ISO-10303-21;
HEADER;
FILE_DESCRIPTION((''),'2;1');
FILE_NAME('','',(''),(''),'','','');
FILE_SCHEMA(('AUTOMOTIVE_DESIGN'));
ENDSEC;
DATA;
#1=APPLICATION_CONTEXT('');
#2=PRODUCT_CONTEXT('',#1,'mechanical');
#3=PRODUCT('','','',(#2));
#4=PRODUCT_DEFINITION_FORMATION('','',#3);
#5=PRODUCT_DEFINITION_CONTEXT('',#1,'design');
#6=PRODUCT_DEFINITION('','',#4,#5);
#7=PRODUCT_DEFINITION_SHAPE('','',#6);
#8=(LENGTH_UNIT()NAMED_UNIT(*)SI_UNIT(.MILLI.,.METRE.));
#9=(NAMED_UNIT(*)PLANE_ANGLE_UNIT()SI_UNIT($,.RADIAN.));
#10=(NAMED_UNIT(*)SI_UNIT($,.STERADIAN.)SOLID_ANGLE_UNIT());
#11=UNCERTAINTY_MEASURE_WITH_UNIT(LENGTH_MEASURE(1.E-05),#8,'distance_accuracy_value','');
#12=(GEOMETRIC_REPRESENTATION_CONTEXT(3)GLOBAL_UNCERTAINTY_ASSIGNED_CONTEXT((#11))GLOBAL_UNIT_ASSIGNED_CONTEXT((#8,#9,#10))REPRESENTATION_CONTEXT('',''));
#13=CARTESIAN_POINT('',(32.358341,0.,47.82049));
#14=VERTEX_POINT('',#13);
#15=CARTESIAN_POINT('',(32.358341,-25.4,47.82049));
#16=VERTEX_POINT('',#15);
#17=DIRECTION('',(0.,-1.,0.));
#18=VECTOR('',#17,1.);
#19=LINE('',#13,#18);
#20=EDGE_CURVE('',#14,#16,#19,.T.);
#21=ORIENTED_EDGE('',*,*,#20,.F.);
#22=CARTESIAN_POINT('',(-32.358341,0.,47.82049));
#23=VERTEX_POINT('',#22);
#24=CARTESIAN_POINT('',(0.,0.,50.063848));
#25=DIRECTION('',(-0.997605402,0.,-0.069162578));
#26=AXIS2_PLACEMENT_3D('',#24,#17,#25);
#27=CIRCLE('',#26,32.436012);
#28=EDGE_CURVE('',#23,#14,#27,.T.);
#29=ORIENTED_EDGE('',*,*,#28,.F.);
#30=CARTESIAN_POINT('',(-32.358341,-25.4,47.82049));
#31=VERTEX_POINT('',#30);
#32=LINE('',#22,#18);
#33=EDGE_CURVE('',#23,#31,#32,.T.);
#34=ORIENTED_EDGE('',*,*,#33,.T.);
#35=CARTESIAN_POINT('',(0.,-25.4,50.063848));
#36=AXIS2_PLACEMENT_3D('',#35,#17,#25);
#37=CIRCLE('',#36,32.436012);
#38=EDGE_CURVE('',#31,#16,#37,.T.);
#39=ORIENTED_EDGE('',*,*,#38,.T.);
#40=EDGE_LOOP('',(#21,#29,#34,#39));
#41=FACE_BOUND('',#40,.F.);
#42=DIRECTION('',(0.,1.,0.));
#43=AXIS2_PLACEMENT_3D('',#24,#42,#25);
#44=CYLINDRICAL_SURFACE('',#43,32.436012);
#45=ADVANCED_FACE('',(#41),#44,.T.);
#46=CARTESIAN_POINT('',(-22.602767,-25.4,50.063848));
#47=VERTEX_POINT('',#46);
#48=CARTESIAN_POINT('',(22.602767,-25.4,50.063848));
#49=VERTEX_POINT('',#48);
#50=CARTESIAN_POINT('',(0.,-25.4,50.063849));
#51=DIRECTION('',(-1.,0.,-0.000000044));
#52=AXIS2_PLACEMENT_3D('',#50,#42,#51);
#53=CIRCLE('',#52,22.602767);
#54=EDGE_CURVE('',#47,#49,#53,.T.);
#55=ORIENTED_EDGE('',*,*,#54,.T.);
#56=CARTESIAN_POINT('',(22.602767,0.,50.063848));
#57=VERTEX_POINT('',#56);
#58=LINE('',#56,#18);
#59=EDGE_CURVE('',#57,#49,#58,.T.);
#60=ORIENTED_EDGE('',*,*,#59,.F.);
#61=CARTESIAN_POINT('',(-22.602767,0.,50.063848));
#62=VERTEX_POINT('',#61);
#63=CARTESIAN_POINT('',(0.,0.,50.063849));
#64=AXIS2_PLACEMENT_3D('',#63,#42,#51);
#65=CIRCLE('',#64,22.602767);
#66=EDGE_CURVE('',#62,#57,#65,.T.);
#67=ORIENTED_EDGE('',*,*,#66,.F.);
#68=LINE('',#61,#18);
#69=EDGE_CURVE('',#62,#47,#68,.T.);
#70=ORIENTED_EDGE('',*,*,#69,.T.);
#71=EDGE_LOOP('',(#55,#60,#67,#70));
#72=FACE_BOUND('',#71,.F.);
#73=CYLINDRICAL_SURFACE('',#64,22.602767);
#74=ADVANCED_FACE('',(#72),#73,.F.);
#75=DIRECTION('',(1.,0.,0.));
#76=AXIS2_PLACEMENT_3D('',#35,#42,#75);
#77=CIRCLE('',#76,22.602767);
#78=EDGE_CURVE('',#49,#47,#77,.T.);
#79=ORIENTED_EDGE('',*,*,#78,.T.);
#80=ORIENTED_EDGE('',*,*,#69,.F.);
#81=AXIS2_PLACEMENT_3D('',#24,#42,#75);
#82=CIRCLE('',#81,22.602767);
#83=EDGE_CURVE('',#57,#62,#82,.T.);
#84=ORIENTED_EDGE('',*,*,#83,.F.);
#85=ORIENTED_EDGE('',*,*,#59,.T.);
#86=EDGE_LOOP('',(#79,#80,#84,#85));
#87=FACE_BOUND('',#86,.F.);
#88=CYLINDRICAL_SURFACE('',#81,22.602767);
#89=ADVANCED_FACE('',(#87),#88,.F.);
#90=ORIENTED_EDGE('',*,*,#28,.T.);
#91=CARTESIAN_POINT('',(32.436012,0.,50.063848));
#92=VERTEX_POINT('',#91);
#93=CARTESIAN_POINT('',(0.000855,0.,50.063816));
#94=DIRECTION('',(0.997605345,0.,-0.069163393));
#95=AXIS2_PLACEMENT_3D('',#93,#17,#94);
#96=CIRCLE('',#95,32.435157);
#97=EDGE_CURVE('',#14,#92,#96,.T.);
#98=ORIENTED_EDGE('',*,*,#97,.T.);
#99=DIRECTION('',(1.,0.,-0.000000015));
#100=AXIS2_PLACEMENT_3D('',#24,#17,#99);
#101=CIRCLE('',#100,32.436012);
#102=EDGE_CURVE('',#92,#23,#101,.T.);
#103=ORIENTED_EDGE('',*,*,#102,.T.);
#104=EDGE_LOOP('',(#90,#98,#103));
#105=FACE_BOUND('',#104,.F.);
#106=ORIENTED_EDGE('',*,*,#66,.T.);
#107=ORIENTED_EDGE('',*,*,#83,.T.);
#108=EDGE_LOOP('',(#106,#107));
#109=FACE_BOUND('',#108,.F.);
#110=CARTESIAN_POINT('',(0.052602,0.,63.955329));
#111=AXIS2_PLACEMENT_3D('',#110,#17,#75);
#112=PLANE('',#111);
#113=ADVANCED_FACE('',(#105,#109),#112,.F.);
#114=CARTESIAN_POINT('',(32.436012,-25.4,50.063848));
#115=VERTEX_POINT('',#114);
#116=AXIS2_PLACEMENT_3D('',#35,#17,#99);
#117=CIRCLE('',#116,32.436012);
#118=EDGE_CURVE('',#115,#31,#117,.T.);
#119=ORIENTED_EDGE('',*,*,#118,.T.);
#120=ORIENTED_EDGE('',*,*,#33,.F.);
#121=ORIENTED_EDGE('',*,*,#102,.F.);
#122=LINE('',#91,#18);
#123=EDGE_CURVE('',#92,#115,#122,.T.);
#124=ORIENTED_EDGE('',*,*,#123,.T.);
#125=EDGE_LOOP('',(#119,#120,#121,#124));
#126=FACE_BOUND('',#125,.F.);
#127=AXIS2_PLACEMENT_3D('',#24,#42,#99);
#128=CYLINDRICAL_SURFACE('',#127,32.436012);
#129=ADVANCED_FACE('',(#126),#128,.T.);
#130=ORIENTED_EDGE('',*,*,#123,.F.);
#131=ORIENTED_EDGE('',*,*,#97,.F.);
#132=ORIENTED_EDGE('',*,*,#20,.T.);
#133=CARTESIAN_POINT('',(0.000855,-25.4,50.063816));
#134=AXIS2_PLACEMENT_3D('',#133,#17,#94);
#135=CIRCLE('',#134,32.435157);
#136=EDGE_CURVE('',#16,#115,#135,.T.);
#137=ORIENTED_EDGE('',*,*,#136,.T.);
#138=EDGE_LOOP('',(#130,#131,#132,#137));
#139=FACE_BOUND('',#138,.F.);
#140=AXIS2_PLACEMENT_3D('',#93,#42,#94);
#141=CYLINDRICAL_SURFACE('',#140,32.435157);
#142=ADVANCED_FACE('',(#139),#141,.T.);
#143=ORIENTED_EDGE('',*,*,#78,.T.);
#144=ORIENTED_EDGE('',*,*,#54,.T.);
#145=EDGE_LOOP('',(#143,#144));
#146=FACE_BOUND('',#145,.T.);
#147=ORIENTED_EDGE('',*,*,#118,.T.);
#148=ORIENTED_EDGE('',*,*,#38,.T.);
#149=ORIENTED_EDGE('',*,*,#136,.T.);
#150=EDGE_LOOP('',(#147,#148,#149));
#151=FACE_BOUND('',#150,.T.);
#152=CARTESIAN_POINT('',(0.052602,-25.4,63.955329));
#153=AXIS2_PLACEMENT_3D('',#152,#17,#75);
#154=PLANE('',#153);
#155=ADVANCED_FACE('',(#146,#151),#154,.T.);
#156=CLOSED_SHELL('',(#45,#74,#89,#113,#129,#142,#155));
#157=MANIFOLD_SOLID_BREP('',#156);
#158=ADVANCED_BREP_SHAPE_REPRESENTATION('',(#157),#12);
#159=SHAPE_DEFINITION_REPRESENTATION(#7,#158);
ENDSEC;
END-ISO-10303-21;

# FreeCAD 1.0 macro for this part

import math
import FreeCAD as App
import Part
import Sketcher
Q = App.Units.Quantity

doc = App.newDocument("Part")
body = doc.addObject("PartDesign::Body", "Body")

# Sketch on XZ plane
sketch1 = body.newObject("Sketcher::SketchObject", "Sketch")
sketch1.AttachmentSupport = (doc.getObject("XZ_Plane"), [""])
sketch1.MapMode = "FlatFace"
sketch1.addGeometry([
    Part.ArcOfCircle(Part.Circle(App.Vector(0.000855, 50.063816, 0), App.Vector(0, 0, 1), 32.435157), math.radians(-3.965937), math.radians(0.000057)),  # 0
    Part.ArcOfCircle(Part.Circle(App.Vector(0, 50.063848, 0), App.Vector(0, 0, 1), 32.436012), math.radians(-0.000001), math.radians(183.96589)),  # 1
    Part.ArcOfCircle(Part.Circle(App.Vector(0, 50.063848, 0), App.Vector(0, 0, 1), 32.436012), math.radians(-176.03411), math.radians(-3.96589)),  # 2
    Part.ArcOfCircle(Part.Circle(App.Vector(0, 50.063849, 0), App.Vector(0, 0, 1), 22.602767), math.radians(-0.000003), math.radians(180.000003)),  # 3
    Part.ArcOfCircle(Part.Circle(App.Vector(0, 50.063848, 0), App.Vector(0, 0, 1), 22.602767), math.radians(180), math.radians(360)),  # 4
], False)
sketch1.addConstraint([
    Sketcher.Constraint("Coincident", 0, 2, 1, 1),
    Sketcher.Constraint("Coincident", 1, 2, 2, 1),
    Sketcher.Constraint("Coincident", 2, 2, 0, 1),
    Sketcher.Constraint("Coincident", 3, 1, 4, 2),
    Sketcher.Constraint("Coincident", 4, 1, 3, 2),
    Sketcher.Constraint("Coincident", 2, 3, 1, 3),
    Sketcher.Constraint("Coincident", 3, 3, 1, 3),
    Sketcher.Constraint("PointOnObject", 1, 3, -2),
    Sketcher.Constraint("Radius", 0, 32.435157),
    Sketcher.Constraint("Radius", 1, 32.436012),
    Sketcher.Constraint("Radius", 3, 22.602767),
    Sketcher.Constraint("DistanceY", -1, 1, 1, 3, 50.063848),
    Sketcher.Constraint("DistanceX", 1, 2, -1, 1, 32.358341),
    Sketcher.Constraint("DistanceX", -1, 1, 2, 2, 32.358341),
    Sketcher.Constraint("DistanceY", 1, 2, 4, 3, 2.243358),
    Sketcher.Constraint("DistanceY", 1, 2, 4, 1, 2.243358),
    Sketcher.Constraint("DistanceY", -1, 1, 0, 2, 50.063848),
    Sketcher.Constraint("DistanceY", -1, 1, 3, 1, 50.063848),
])
pad1 = body.newObject("PartDesign::Pad", "Pad")
pad1.Profile = sketch1
pad1.Length = Q("1 in")

doc.recompute()
